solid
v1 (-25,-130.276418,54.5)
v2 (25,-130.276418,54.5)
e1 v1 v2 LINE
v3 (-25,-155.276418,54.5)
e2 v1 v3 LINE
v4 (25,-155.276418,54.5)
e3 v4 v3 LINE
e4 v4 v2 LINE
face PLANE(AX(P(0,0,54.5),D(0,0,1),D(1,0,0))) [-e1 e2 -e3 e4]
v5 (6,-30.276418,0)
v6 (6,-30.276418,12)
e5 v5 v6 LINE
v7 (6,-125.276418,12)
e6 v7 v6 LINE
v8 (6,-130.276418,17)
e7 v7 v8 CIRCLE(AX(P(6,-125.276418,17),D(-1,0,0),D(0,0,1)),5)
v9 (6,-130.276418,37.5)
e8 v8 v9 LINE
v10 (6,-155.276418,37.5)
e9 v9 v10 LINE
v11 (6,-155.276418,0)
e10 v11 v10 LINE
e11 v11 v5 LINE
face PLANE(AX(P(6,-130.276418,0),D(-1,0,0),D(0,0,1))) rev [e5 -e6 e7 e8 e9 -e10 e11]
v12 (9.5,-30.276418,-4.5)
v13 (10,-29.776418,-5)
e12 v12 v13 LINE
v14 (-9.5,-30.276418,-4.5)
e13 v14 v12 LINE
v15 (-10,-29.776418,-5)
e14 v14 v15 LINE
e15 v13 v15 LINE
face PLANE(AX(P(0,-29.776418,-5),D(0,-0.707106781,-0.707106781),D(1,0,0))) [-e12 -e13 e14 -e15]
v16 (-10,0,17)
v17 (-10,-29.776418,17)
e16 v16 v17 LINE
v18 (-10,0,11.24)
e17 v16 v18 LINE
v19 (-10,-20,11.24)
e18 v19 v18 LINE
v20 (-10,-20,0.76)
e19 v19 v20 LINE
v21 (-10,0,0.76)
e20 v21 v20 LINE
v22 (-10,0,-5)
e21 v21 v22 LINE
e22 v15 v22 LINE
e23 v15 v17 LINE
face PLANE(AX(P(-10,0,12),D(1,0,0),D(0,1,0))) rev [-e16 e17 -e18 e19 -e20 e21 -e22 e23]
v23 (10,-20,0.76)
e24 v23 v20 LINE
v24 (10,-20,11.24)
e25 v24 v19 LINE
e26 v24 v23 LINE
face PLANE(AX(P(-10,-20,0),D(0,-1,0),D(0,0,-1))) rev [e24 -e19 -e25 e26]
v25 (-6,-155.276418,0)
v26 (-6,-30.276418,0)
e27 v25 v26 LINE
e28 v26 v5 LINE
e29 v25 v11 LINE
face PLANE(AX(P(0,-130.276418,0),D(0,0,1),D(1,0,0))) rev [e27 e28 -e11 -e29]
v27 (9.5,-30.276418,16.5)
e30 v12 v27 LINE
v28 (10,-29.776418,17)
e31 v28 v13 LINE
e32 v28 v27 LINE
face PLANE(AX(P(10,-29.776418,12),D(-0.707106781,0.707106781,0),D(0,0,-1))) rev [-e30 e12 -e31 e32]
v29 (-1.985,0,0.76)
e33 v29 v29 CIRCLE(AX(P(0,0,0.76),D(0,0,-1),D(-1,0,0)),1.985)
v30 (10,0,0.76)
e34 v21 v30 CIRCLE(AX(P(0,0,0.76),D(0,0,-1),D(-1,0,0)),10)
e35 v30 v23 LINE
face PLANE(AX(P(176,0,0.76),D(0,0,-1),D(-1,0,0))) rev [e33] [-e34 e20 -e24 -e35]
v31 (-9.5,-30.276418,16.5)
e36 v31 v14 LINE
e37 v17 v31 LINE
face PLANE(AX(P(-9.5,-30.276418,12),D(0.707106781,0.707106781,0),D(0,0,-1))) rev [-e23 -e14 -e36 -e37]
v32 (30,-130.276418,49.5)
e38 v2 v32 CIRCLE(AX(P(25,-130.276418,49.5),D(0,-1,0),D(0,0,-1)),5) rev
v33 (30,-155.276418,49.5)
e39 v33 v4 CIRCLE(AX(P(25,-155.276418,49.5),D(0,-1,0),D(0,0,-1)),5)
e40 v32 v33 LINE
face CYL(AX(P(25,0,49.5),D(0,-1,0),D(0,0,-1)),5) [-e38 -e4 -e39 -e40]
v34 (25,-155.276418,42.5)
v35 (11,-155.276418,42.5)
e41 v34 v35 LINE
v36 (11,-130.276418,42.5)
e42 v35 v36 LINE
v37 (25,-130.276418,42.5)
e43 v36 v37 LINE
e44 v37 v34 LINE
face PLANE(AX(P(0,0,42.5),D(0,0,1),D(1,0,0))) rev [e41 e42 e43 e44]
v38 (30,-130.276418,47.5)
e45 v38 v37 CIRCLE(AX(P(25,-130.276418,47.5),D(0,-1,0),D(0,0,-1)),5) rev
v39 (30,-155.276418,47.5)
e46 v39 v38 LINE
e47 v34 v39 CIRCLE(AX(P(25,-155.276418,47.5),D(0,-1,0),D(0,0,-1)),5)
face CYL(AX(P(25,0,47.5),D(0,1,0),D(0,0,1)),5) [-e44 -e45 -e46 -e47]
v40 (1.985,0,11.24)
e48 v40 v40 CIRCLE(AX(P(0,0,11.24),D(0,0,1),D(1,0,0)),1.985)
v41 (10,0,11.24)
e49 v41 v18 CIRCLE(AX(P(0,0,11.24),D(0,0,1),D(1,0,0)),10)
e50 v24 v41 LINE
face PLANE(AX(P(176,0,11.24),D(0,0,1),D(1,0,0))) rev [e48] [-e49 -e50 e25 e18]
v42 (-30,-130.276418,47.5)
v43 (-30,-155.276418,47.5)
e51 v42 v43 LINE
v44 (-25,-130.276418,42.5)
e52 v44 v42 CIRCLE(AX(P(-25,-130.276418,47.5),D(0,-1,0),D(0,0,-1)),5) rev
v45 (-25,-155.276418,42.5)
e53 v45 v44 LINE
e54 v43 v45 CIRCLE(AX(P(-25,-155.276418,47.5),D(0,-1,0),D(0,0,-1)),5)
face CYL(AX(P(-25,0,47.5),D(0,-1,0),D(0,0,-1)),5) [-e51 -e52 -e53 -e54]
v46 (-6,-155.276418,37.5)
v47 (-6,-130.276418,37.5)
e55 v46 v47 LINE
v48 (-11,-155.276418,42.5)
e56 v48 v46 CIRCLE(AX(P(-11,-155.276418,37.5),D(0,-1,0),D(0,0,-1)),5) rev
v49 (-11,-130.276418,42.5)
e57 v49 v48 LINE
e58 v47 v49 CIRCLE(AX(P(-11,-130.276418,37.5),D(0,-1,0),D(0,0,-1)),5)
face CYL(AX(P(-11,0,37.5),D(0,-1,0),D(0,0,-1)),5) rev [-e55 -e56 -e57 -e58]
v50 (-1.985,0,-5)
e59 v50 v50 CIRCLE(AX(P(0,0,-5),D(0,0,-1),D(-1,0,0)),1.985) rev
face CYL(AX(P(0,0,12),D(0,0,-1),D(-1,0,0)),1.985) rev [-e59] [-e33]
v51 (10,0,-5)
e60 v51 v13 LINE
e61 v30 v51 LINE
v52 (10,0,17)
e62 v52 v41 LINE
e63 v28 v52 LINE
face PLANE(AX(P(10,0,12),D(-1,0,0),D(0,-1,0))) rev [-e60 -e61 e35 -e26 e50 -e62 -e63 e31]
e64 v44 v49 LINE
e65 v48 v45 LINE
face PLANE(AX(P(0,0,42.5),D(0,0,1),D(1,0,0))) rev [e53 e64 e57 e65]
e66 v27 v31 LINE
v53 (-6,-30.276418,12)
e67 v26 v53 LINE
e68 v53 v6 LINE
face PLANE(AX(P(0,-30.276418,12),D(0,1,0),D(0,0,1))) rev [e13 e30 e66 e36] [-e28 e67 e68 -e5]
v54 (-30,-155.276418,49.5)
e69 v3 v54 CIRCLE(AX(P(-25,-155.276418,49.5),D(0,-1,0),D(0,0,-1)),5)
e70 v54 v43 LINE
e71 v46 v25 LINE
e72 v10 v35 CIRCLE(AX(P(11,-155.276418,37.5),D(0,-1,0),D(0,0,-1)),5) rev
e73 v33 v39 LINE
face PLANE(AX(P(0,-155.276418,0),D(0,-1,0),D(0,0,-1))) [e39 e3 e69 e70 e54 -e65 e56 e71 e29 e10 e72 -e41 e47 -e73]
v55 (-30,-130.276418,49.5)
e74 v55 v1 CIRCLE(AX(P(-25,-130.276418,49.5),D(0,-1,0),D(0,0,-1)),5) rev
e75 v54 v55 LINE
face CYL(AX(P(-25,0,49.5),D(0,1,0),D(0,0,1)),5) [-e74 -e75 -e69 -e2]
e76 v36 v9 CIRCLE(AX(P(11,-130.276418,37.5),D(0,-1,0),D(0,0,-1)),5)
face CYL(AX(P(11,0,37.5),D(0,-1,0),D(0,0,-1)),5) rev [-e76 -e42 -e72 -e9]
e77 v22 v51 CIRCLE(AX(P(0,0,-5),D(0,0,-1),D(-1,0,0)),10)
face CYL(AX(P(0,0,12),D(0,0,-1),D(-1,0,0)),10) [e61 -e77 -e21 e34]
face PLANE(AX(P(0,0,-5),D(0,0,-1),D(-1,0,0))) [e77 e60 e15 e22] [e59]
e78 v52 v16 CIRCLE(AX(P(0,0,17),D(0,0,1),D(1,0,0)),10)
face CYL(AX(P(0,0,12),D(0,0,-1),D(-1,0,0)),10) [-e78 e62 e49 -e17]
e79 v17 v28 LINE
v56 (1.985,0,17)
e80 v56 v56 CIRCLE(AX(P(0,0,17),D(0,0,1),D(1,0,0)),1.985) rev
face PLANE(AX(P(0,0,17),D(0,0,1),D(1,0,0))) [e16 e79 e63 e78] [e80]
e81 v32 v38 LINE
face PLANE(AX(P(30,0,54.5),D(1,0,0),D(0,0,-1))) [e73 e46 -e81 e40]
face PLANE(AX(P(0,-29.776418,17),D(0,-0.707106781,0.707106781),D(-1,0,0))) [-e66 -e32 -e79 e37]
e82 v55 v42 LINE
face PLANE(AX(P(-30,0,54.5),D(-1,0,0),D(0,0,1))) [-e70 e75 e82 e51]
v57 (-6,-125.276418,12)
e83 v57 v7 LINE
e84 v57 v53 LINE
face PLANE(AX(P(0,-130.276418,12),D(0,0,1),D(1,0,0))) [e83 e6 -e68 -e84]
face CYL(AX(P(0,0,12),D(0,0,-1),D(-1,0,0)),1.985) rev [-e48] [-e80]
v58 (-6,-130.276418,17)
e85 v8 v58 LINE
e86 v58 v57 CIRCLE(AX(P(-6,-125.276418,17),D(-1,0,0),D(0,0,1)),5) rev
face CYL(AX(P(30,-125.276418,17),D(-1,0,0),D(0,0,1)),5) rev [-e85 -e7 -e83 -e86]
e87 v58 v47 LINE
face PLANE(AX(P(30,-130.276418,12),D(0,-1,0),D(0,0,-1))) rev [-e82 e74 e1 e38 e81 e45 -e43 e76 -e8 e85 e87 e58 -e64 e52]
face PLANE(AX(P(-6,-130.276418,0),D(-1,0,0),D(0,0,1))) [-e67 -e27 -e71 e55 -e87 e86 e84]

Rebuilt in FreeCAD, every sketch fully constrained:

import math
import FreeCAD as App
import Part
import Sketcher

V = App.Vector
Q = App.Units.Quantity


def edges_at(feature, points):
    """Names of the edges that pass closest to the given points."""
    edges = feature.Shape.Edges
    near = lambda p: min(range(len(edges)), key=lambda i: edges[i].distToShape(Part.Vertex(*p))[0])
    return sorted({f"Edge{near(p) + 1}" for p in points})


def add_polygon(sketch, points):
    """Adds a closed chain of lines whose ends are joined by coincident constraints."""
    first, n = sketch.GeometryCount, len(points)
    for a, b in zip(points, points[1:] + points[:1]):
        sketch.addGeometry(Part.LineSegment(App.Vector(*a, 0), App.Vector(*b, 0)), False)
    for i in range(n):
        sketch.addConstraint(Sketcher.Constraint("Coincident", first + i, 2, first + (i + 1) % n, 1))

doc = App.newDocument("Part")
body = doc.addObject("PartDesign::Body", "Body")

# Sketch on XY plane
sketch1 = doc.addObject("Sketcher::SketchObject", "Sketch")
body.addObject(sketch1)
sketch1.AttachmentSupport = (doc.XY_Plane, [""])
sketch1.MapMode = "FlatFace"
sketch1.addGeometry([
    Part.LineSegment(V(-10, 0, 0), V(-10, -30.3, 0)),  # 0
    Part.LineSegment(V(-10, -30.3, 0), V(10, -30.3, 0)),  # 1
    Part.LineSegment(V(10, -30.3, 0), V(10, 0, 0)),  # 2
    Part.ArcOfCircle(Part.Circle(V(0, 0, 0), V(0, 0, 1), 10), math.radians(0), math.radians(180)),  # 3
    Part.Circle(V(0, 0, 0), V(0, 0, 1), 2),  # 4
], False)
sketch1.addConstraint([
    Sketcher.Constraint("Coincident", 0, 2, 1, 1),
    Sketcher.Constraint("Coincident", 1, 2, 2, 1),
    Sketcher.Constraint("Tangent", 2, 2, 3, 1),
    Sketcher.Constraint("Tangent", 3, 2, 0, 1),
    Sketcher.Constraint("Vertical", 0),
    Sketcher.Constraint("Horizontal", 1),
    Sketcher.Constraint("Vertical", 2),
    Sketcher.Constraint("Coincident", 3, 3, -1, 1),
    Sketcher.Constraint("Coincident", 4, 3, -1, 1),
    Sketcher.Constraint("Radius", 3, Q("10 mm")),
    Sketcher.Constraint("Diameter", 4, Q("3.97 mm")),
    Sketcher.Constraint("DistanceY", 0, 2, 0, 1, Q("30.276418 mm")),
])
pad1 = doc.addObject("PartDesign::Pad", "Pad")
body.addObject(pad1)
pad1.Profile = sketch1
pad1.Length = 12

# Sketch on YZ plane
sketch2 = doc.addObject("Sketcher::SketchObject", "Sketch001")
body.addObject(sketch2)
sketch2.AttachmentSupport = (doc.YZ_Plane, [""])
sketch2.MapMode = "FlatFace"
sketch2.AttachmentOffset = App.Placement(V(0, 0, 10), App.Rotation())
add_polygon(sketch2, [(15.780779, 3), (15.780779, 9), (0, 9), (-20, 8.600534), (-20, 3)])  # lines 0-4
sketch2.addConstraint([
    Sketcher.Constraint("Vertical", 0),
    Sketcher.Constraint("Horizontal", 1),
    Sketcher.Constraint("Vertical", 3),
    Sketcher.Constraint("Horizontal", 4),
    Sketcher.Constraint("PointOnObject", 1, 2, -2),
    Sketcher.Constraint("DistanceY", 0, 1, 0, 2, Q("6 mm")),
    Sketcher.Constraint("DistanceY", -1, 1, 0, 2, Q("9 mm")),
    Sketcher.Constraint("DistanceX", 2, 2, -1, 1, Q("20 mm")),
    Sketcher.Constraint("DistanceX", 1, 2, 1, 1, Q("15.780779 mm")),
    Sketcher.Constraint("Distance", 2, Q("20.003989 mm")),
])
pocket1 = doc.addObject("PartDesign::Pocket", "Pocket")
body.addObject(pocket1)
pocket1.Profile = sketch2
pocket1.Type = "ThroughAll"

# Sketch on YZ plane
sketch3 = doc.addObject("Sketcher::SketchObject", "Sketch002")
body.addObject(sketch3)
sketch3.AttachmentSupport = (doc.YZ_Plane, [""])
sketch3.MapMode = "FlatFace"
sketch3.AttachmentOffset = App.Placement(V(0, 0, 10), App.Rotation())
add_polygon(sketch3, [(0, 9), (-20, 9), (-20, 8.6)])  # lines 0-2
sketch3.addConstraint([
    Sketcher.Constraint("Horizontal", 0),
    Sketcher.Constraint("Vertical", 1),
    Sketcher.Constraint("PointOnObject", 2, 2, -2),
    Sketcher.Constraint("DistanceX", 0, 2, 0, 1, Q("20 mm")),
    Sketcher.Constraint("DistanceY", -1, 1, 0, 2, Q("9 mm")),
    Sketcher.Constraint("Distance", 2, Q("20.003989 mm")),
])
pocket2 = doc.addObject("PartDesign::Pocket", "Pocket001")
body.addObject(pocket2)
pocket2.Profile = sketch3
pocket2.Type = "ThroughAll"

# Sketch on XY plane
sketch4 = doc.addObject("Sketcher::SketchObject", "Sketch003")
body.addObject(sketch4)
sketch4.AttachmentSupport = (doc.XY_Plane, [""])
sketch4.MapMode = "FlatFace"
sketch4.AttachmentOffset = App.Placement(V(0, 0, 12), App.Rotation())
sketch4.addGeometry([
    Part.ArcOfCircle(Part.Circle(V(0, 0, 0), V(0, 0, 1), 10), math.radians(0), math.radians(180)),  # 0
    Part.LineSegment(V(-10, 0, 0), V(-10, -30.3, 0)),  # 1
    Part.LineSegment(V(-10, -30.3, 0), V(10, -30.3, 0)),  # 2
    Part.LineSegment(V(10, -30.3, 0), V(10, 0, 0)),  # 3
    Part.Circle(V(0, 0, 0), V(0, 0, 1), 2),  # 4
], False)
sketch4.addConstraint([
    Sketcher.Constraint("Tangent", 0, 2, 1, 1),
    Sketcher.Constraint("Coincident", 1, 2, 2, 1),
    Sketcher.Constraint("Coincident", 2, 2, 3, 1),
    Sketcher.Constraint("Tangent", 3, 2, 0, 1),
    Sketcher.Constraint("Vertical", 1),
    Sketcher.Constraint("Horizontal", 2),
    Sketcher.Constraint("Vertical", 3),
    Sketcher.Constraint("Coincident", 0, 3, -1, 1),
    Sketcher.Constraint("Coincident", 4, 3, -1, 1),
    Sketcher.Constraint("Radius", 0, Q("10 mm")),
    Sketcher.Constraint("Diameter", 4, Q("3.97 mm")),
    Sketcher.Constraint("DistanceY", 1, 2, 1, 1, Q("30.276418 mm")),
])
pad2 = doc.addObject("PartDesign::Pad", "Pad001")
body.addObject(pad2)
pad2.Profile = sketch4
pad2.Length = 5

# Sketch on XY plane
sketch5 = doc.addObject("Sketcher::SketchObject", "Sketch004")
body.addObject(sketch5)
sketch5.AttachmentSupport = (doc.XY_Plane, [""])
sketch5.MapMode = "FlatFace"
sketch5.addGeometry([
    Part.ArcOfCircle(Part.Circle(V(0, 0, 0), V(0, 0, 1), 10), math.radians(0), math.radians(180)),  # 0
    Part.LineSegment(V(10, 0, 0), V(10, -30.3, 0)),  # 1
    Part.LineSegment(V(10, -30.3, 0), V(-10, -30.3, 0)),  # 2
    Part.LineSegment(V(-10, -30.3, 0), V(-10, 0, 0)),  # 3
    Part.Circle(V(0, 0, 0), V(0, 0, 1), 2),  # 4
], False)
sketch5.addConstraint([
    Sketcher.Constraint("Tangent", 0, 1, 1, 1),
    Sketcher.Constraint("Coincident", 1, 2, 2, 1),
    Sketcher.Constraint("Coincident", 2, 2, 3, 1),
    Sketcher.Constraint("Tangent", 3, 2, 0, 2),
    Sketcher.Constraint("Vertical", 1),
    Sketcher.Constraint("Horizontal", 2),
    Sketcher.Constraint("Vertical", 3),
    Sketcher.Constraint("Coincident", 0, 3, -1, 1),
    Sketcher.Constraint("Coincident", 4, 3, -1, 1),
    Sketcher.Constraint("Radius", 0, Q("10 mm")),
    Sketcher.Constraint("Diameter", 4, Q("3.97 mm")),
    Sketcher.Constraint("DistanceY", 1, 2, 1, 1, Q("30.276418 mm")),
])
pad3 = doc.addObject("PartDesign::Pad", "Pad002")
body.addObject(pad3)
pad3.Profile = sketch5
pad3.Length = 5
pad3.Reversed = True

# Sketch on YZ plane
sketch6 = doc.addObject("Sketcher::SketchObject", "Sketch005")
body.addObject(sketch6)
sketch6.AttachmentSupport = (doc.YZ_Plane, [""])
sketch6.MapMode = "FlatFace"
sketch6.AttachmentOffset = App.Placement(V(0, 0, -10), App.Rotation())
add_polygon(sketch6, [(10, 11), (10, 1), (-20, 1), (-20, 11)])  # lines 0-3
sketch6.addConstraint([
    Sketcher.Constraint("Vertical", 0),
    Sketcher.Constraint("Horizontal", 1),
    Sketcher.Constraint("Vertical", 2),
    Sketcher.Constraint("Horizontal", 3),
    Sketcher.Constraint("DistanceX", 1, 2, 1, 1, Q("30 mm")),
    Sketcher.Constraint("DistanceX", -1, 1, 0, 2, Q("10 mm")),
    Sketcher.Constraint("DistanceY", 0, 2, 0, 1, Q("10.08 mm")),
    Sketcher.Constraint("DistanceY", -1, 1, 0, 2, Q("0.96 mm")),
])
pocket3 = doc.addObject("PartDesign::Pocket", "Pocket002")
body.addObject(pocket3)
pocket3.Profile = sketch6
pocket3.Type = "ThroughAll"
pocket3.Reversed = True

# Sketch on XZ plane
sketch7 = doc.addObject("Sketcher::SketchObject", "Sketch006")
body.addObject(sketch7)
sketch7.AttachmentSupport = (doc.XZ_Plane, [""])
sketch7.MapMode = "FlatFace"
sketch7.AttachmentOffset = App.Placement(V(0, 0, 30.276418), App.Rotation())
add_polygon(sketch7, [(6, 12), (-6, 12), (-6, 0), (6, 0)])  # lines 0-3
sketch7.addConstraint([
    Sketcher.Constraint("Horizontal", 0),
    Sketcher.Constraint("Vertical", 1),
    Sketcher.Constraint("Horizontal", 2),
    Sketcher.Constraint("Vertical", 3),
    Sketcher.Constraint("Symmetric", 1, 2, 2, 2, -1, 1),
    Sketcher.Constraint("Equal", 2, 1),
    Sketcher.Constraint("DistanceX", 0, 2, 0, 1, Q("12 mm")),
])
pad4 = doc.addObject("PartDesign::Pad", "Pad003")
body.addObject(pad4)
pad4.Profile = sketch7
pad4.Length = 100

# Sketch on XZ plane
sketch8 = doc.addObject("Sketcher::SketchObject", "Sketch007")
body.addObject(sketch8)
sketch8.AttachmentSupport = (doc.XZ_Plane, [""])
sketch8.MapMode = "FlatFace"
sketch8.AttachmentOffset = App.Placement(V(0, 0, 130.276418), App.Rotation())
add_polygon(sketch8, [(176, -54), (176, 96), (-61, 96), (-61, -54)])  # lines 0-3
sketch8.addConstraint([
    Sketcher.Constraint("Vertical", 0),
    Sketcher.Constraint("Horizontal", 1),
    Sketcher.Constraint("Vertical", 2),
    Sketcher.Constraint("Horizontal", 3),
    Sketcher.Constraint("DistanceX", 1, 2, 1, 1, Q("237 mm")),
    Sketcher.Constraint("DistanceY", 0, 1, 0, 2, Q("150 mm")),
    Sketcher.Constraint("DistanceX", -1, 1, 0, 2, Q("176 mm")),
    Sketcher.Constraint("DistanceY", -1, 1, 0, 2, Q("96 mm")),
])
pad5 = doc.addObject("PartDesign::Pad", "Pad004")
body.addObject(pad5)
pad5.Profile = sketch8
pad5.Length = 25

# Sketch on XZ plane
sketch9 = doc.addObject("Sketcher::SketchObject", "Sketch008")
body.addObject(sketch9)
sketch9.AttachmentSupport = (doc.XZ_Plane, [""])
sketch9.MapMode = "FlatFace"
sketch9.AttachmentOffset = App.Placement(V(0, 0, 130.276418), App.Rotation())
add_polygon(sketch9, [(119, 68), (139, 68), (139, 37), (119, 37)])  # lines 0-3
sketch9.addConstraint([
    Sketcher.Constraint("Horizontal", 0),
    Sketcher.Constraint("Vertical", 1),
    Sketcher.Constraint("Horizontal", 2),
    Sketcher.Constraint("Vertical", 3),
    Sketcher.Constraint("DistanceX", 0, 1, 0, 2, Q("20 mm")),
    Sketcher.Constraint("DistanceY", 1, 2, 1, 1, Q("31 mm")),
    Sketcher.Constraint("DistanceX", -1, 1, 0, 2, Q("139 mm")),
    Sketcher.Constraint("DistanceY", -1, 1, 0, 2, Q("68 mm")),
])
pad6 = doc.addObject("PartDesign::Pad", "Pad005")
body.addObject(pad6)
pad6.Profile = sketch9
pad6.Length = 7
pad6.Reversed = True

# Sketch on XZ plane
sketch10 = doc.addObject("Sketcher::SketchObject", "Sketch009")
body.addObject(sketch10)
sketch10.AttachmentSupport = (doc.XZ_Plane, [""])
sketch10.MapMode = "FlatFace"
sketch10.AttachmentOffset = App.Placement(V(0, 0, 130.276418), App.Rotation())
add_polygon(sketch10, [(114, 68), (119, 68), (119, 37), (114, 37)])  # lines 0-3
add_polygon(sketch10, [(139, 37), (139, 68), (144, 68), (144, 37)])  # lines 4-7
sketch10.addConstraint([
    Sketcher.Constraint("Horizontal", 0),
    Sketcher.Constraint("Vertical", 1),
    Sketcher.Constraint("Vertical", 3),
    Sketcher.Constraint("Vertical", 4),
    Sketcher.Constraint("Horizontal", 5),
    Sketcher.Constraint("Vertical", 6),
    Sketcher.Constraint("Horizontal", 7),
    Sketcher.Constraint("Horizontal", 3, 2, 4, 2),
    Sketcher.Constraint("Horizontal", 1, 2, 6, 2),
    Sketcher.Constraint("Equal", 0, 5),
    Sketcher.Constraint("DistanceX", 0, 1, 0, 2, Q("5 mm")),
    Sketcher.Constraint("DistanceY", 1, 2, 1, 1, Q("31 mm")),
    Sketcher.Constraint("DistanceX", -1, 1, 0, 2, Q("119 mm")),
    Sketcher.Constraint("DistanceY", -1, 1, 0, 2, Q("68 mm")),
    Sketcher.Constraint("DistanceX", -1, 1, 4, 2, Q("139 mm")),
    Sketcher.Constraint("DistanceY", 3, 1, 3, 2, Q("30.870275 mm")),
])
pad7 = doc.addObject("PartDesign::Pad", "Pad006")
body.addObject(pad7)
pad7.Profile = sketch10
pad7.Length = 45
pad7.Reversed = True

# Sketch on XY plane
sketch11 = doc.addObject("Sketcher::SketchObject", "Sketch010")
body.addObject(sketch11)
sketch11.AttachmentSupport = (doc.XY_Plane, [""])
sketch11.MapMode = "FlatFace"
sketch11.AttachmentOffset = App.Placement(V(0, 0, 68), App.Rotation())
add_polygon(sketch11, [(144, -130), (159, -130), (144, -85)])  # lines 0-2
add_polygon(sketch11, [(114, -85), (99, -130), (114, -130)])  # lines 3-5
sketch11.addConstraint([
    Sketcher.Constraint("Horizontal", 0),
    Sketcher.Constraint("Vertical", 2),
    Sketcher.Constraint("Horizontal", 4),
    Sketcher.Constraint("Vertical", 5),
    Sketcher.Constraint("Horizontal", 2, 2, 3, 2),
    Sketcher.Constraint("Horizontal", 1, 2, 5, 2),
    Sketcher.Constraint("Equal", 0, 4),
    Sketcher.Constraint("DistanceX", 0, 1, 0, 2, Q("15 mm")),
    Sketcher.Constraint("DistanceY", 2, 2, 2, 1, Q("45 mm")),
    Sketcher.Constraint("DistanceX", -1, 1, 0, 2, Q("159 mm")),
    Sketcher.Constraint("DistanceX", -1, 1, 3, 2, Q("99 mm")),
    Sketcher.Constraint("DistanceY", 0, 2, -1, 1, Q("130.276418 mm")),
])
pad8 = doc.addObject("PartDesign::Pad", "Pad007")
body.addObject(pad8)
pad8.Profile = sketch11
pad8.Length = 31
pad8.Reversed = True

# Sketch on XY plane
sketch12 = doc.addObject("Sketcher::SketchObject", "Sketch011")
body.addObject(sketch12)
sketch12.AttachmentSupport = (doc.XY_Plane, [""])
sketch12.MapMode = "FlatFace"
sketch12.AttachmentOffset = App.Placement(V(0, 0, 37), App.Rotation())
sketch12.addGeometry([
    Part.Circle(V(134.9, -126.8, 0), V(0, 0, 1), 2),
    Part.Circle(V(123, -126.8, 0), V(0, 0, 1), 2),
], False)
sketch12.addConstraint([
    Sketcher.Constraint("Equal", 0, 1),
    Sketcher.Constraint("Horizontal", 0, 3, 1, 3),
    Sketcher.Constraint("Diameter", 0, Q("4 mm")),
    Sketcher.Constraint("DistanceX", 1, 3, 0, 3, Q("11.9 mm")),
    Sketcher.Constraint("DistanceX", -1, 1, 0, 3, Q("134.95 mm")),
    Sketcher.Constraint("DistanceY", 0, 3, -1, 1, Q("126.776418 mm")),
])
pocket4 = doc.addObject("PartDesign::Pocket", "Pocket003")
body.addObject(pocket4)
pocket4.Profile = sketch12
pocket4.Type = "ThroughAll"
pocket4.Reversed = True

# Sketch on YZ plane
sketch13 = doc.addObject("Sketcher::SketchObject", "Sketch012")
body.addObject(sketch13)
sketch13.AttachmentSupport = (doc.YZ_Plane, [""])
sketch13.MapMode = "FlatFace"
sketch13.AttachmentOffset = App.Placement(V(0, 0, -10), App.Rotation())
add_polygon(sketch13, [(10, 1), (-20, 1), (-20, 11), (10, 11)])  # lines 0-3
sketch13.addConstraint([
    Sketcher.Constraint("Horizontal", 0),
    Sketcher.Constraint("Vertical", 1),
    Sketcher.Constraint("Horizontal", 2),
    Sketcher.Constraint("Vertical", 3),
    Sketcher.Constraint("DistanceX", 0, 2, 0, 1, Q("30 mm")),
    Sketcher.Constraint("DistanceX", 0, 2, -1, 1, Q("20 mm")),
    Sketcher.Constraint("DistanceY", 1, 1, 1, 2, Q("10.48 mm")),
    Sketcher.Constraint("DistanceY", -1, 1, 0, 2, Q("0.76 mm")),
])
pocket5 = doc.addObject("PartDesign::Pocket", "Pocket004")
body.addObject(pocket5)
pocket5.Profile = sketch13
pocket5.Type = "ThroughAll"
pocket5.Reversed = True
doc.recompute()

fillet = doc.addObject("PartDesign::Fillet", "Fillet")
body.addObject(fillet)
fillet.Base = (pocket5, edges_at(pocket5, [
    (-61, -142.776, 96),
    (-61, -142.776, -54),
    (176, -142.776, -54),
    (176, -142.776, 96),
]))
fillet.Radius = 10

# Sketch on XY plane
sketch14 = doc.addObject("Sketcher::SketchObject", "Sketch013")
body.addObject(sketch14)
sketch14.AttachmentSupport = (doc.XY_Plane, [""])
sketch14.MapMode = "FlatFace"
add_polygon(sketch14, [(6, -80), (16, -130), (6, -130)])  # lines 0-2
add_polygon(sketch14, [(-16, -130), (-6, -80), (-6, -130)])  # lines 3-5
sketch14.addConstraint([
    Sketcher.Constraint("Horizontal", 1),
    Sketcher.Constraint("Vertical", 2),
    Sketcher.Constraint("Vertical", 4),
    Sketcher.Constraint("Horizontal", 5),
    Sketcher.Constraint("Symmetric", 2, 2, 3, 2, -2),
    Sketcher.Constraint("Symmetric", 0, 2, 5, 2, -2),
    Sketcher.Constraint("DistanceX", 1, 2, 1, 1, Q("10 mm")),
    Sketcher.Constraint("DistanceY", 2, 1, 2, 2, Q("50 mm")),
    Sketcher.Constraint("DistanceX", -1, 1, 0, 2, Q("16 mm")),
    Sketcher.Constraint("DistanceY", 0, 2, -1, 1, Q("130.276418 mm")),
])
pad9 = doc.addObject("PartDesign::Pad", "Pad008")
body.addObject(pad9)
pad9.Profile = sketch14
pad9.Length = 12

# Sketch on YZ plane
sketch15 = doc.addObject("Sketcher::SketchObject", "Sketch014")
body.addObject(sketch15)
sketch15.AttachmentSupport = (doc.YZ_Plane, [""])
sketch15.MapMode = "FlatFace"
sketch15.AttachmentOffset = App.Placement(V(0, 0, 6), App.Rotation())
add_polygon(sketch15, [(-80, 12), (-130, 22), (-130, 12)])  # lines 0-2
add_polygon(sketch15, [(-130, -11), (-80, 0), (-130, 0)])  # lines 3-5
sketch15.addConstraint([
    Sketcher.Constraint("Vertical", 1),
    Sketcher.Constraint("Horizontal", 2),
    Sketcher.Constraint("Horizontal", 4),
    Sketcher.Constraint("Vertical", 5),
    Sketcher.Constraint("PointOnObject", 3, 2, -1),
    Sketcher.Constraint("Vertical", 2, 2, 3, 2),
    Sketcher.Constraint("Vertical", 1, 2, 4, 2),
    Sketcher.Constraint("DistanceX", 2, 1, 2, 2, Q("50 mm")),
    Sketcher.Constraint("DistanceY", 1, 2, 1, 1, Q("10 mm")),
    Sketcher.Constraint("DistanceY", -1, 1, 0, 2, Q("22 mm")),
    Sketcher.Constraint("DistanceY", 5, 2, 5, 1, Q("11.303197 mm")),
    Sketcher.Constraint("DistanceX", 0, 2, -1, 1, Q("130.276418 mm")),
])
pad10 = doc.addObject("PartDesign::Pad", "Pad009")
body.addObject(pad10)
pad10.Profile = sketch15
pad10.Length = 12
pad10.Reversed = True

# Sketch on XZ plane
sketch16 = doc.addObject("Sketcher::SketchObject", "Sketch015")
body.addObject(sketch16)
sketch16.AttachmentSupport = (doc.XZ_Plane, [""])
sketch16.MapMode = "FlatFace"
sketch16.AttachmentOffset = App.Placement(V(0, 0, 130.276418), App.Rotation())
add_polygon(sketch16, [(-6, 58), (6, 58), (6, 46), (-6, 46)])  # lines 0-3
sketch16.addConstraint([
    Sketcher.Constraint("Horizontal", 0),
    Sketcher.Constraint("Vertical", 1),
    Sketcher.Constraint("Horizontal", 2),
    Sketcher.Constraint("Vertical", 3),
    Sketcher.Constraint("Equal", 2, 1),
    Sketcher.Constraint("DistanceX", 0, 1, 0, 2, Q("12 mm")),
    Sketcher.Constraint("DistanceX", -1, 1, 0, 2, Q("6 mm")),
    Sketcher.Constraint("DistanceY", -1, 1, 0, 2, Q("58.5 mm")),
])
pad11 = doc.addObject("PartDesign::Pad", "Pad010")
body.addObject(pad11)
pad11.Profile = sketch16
pad11.Length = 72
pad11.Reversed = True

# Sketch on XY plane
sketch17 = doc.addObject("Sketcher::SketchObject", "Sketch016")
body.addObject(sketch17)
sketch17.AttachmentSupport = (doc.XY_Plane, [""])
sketch17.MapMode = "FlatFace"
sketch17.AttachmentOffset = App.Placement(V(0, 0, 12), App.Rotation())
add_polygon(sketch17, [(-6, -58), (-6, -70), (6, -70), (6, -58)])  # lines 0-3
sketch17.addConstraint([
    Sketcher.Constraint("Vertical", 0),
    Sketcher.Constraint("Horizontal", 1),
    Sketcher.Constraint("Vertical", 2),
    Sketcher.Constraint("Horizontal", 3),
    Sketcher.Constraint("Equal", 3, 0),
    Sketcher.Constraint("DistanceX", 1, 1, 1, 2, Q("12 mm")),
    Sketcher.Constraint("DistanceX", 0, 2, -1, 1, Q("6 mm")),
    Sketcher.Constraint("DistanceY", 0, 2, -1, 1, Q("70.276418 mm")),
])
pad12 = doc.addObject("PartDesign::Pad", "Pad011")
body.addObject(pad12)
pad12.Profile = sketch17
pad12.Length = 34.5

# Sketch on YZ plane
sketch18 = doc.addObject("Sketcher::SketchObject", "Sketch017")
body.addObject(sketch18)
sketch18.AttachmentSupport = (doc.YZ_Plane, [""])
sketch18.MapMode = "FlatFace"
sketch18.AttachmentOffset = App.Placement(V(0, 0, -6), App.Rotation())
add_polygon(sketch18, [(-70, 12), (-70, 0), (-119, -67), (-164, -59), (-164, 22), (-130, 22), (-86, 21)])  # lines 0-6
sketch18.addConstraint([
    Sketcher.Constraint("Vertical", 0),
    Sketcher.Constraint("Vertical", 3),
    Sketcher.Constraint("Horizontal", 4),
    Sketcher.Constraint("PointOnObject", 0, 2, -1),
    Sketcher.Constraint("DistanceY", 0, 2, 0, 1, Q("12 mm")),
    Sketcher.Constraint("DistanceY", -1, 1, 3, 2, Q("22 mm")),
    Sketcher.Constraint("DistanceX", 4, 2, 0, 2, Q("60 mm")),
    Sketcher.Constraint("DistanceX", 4, 1, 4, 2, Q("34.084859 mm")),
    Sketcher.Constraint("DistanceY", 3, 1, 3, 2, Q("80.508131 mm")),
    Sketcher.Constraint("Distance", 5, Q("43.875541 mm")),
    Sketcher.Constraint("DistanceY", 1, 2, -1, 1, Q("67.391721 mm")),
    Sketcher.Constraint("DistanceY", -1, 1, 5, 2, Q("21.22209 mm")),
    Sketcher.Constraint("DistanceX", 1, 2, 0, 2, Q("48.778549 mm")),
    Sketcher.Constraint("DistanceX", 0, 2, -1, 1, Q("70.276418 mm")),
])
pocket6 = doc.addObject("PartDesign::Pocket", "Pocket005")
body.addObject(pocket6)
pocket6.Profile = sketch18
pocket6.Type = "ThroughAll"
pocket6.Midplane = True

# Sketch on XZ plane
sketch19 = doc.addObject("Sketcher::SketchObject", "Sketch018")
body.addObject(sketch19)
sketch19.AttachmentSupport = (doc.XZ_Plane, [""])
sketch19.MapMode = "FlatFace"
sketch19.AttachmentOffset = App.Placement(V(0, 0, 130.276418), App.Rotation())
add_polygon(sketch19, [(-80, -6), (-80, 111), (197, 111), (197, -6)])  # lines 0-3
sketch19.addGeometry(Part.ArcOfCircle(Part.Circle(V(-17, 52, 0), V(0, 0, 1), 23), math.radians(90), math.radians(270)), False)  # 4
sketch19.addGeometry(Part.LineSegment(V(-17, 30, 0), V(148, 30, 0)), False)  # 5
sketch19.addGeometry(Part.ArcOfCircle(Part.Circle(V(148, 52, 0), V(0, 0, 1), 23), math.radians(-90), math.radians(90)), False)  # 6
sketch19.addGeometry(Part.LineSegment(V(148, 75, 0), V(-17, 75, 0)), False)  # 7
sketch19.addConstraint([
    Sketcher.Constraint("Tangent", 4, 2, 5, 1),
    Sketcher.Constraint("Tangent", 5, 2, 6, 1),
    Sketcher.Constraint("Tangent", 6, 2, 7, 1),
    Sketcher.Constraint("Tangent", 7, 2, 4, 1),
    Sketcher.Constraint("Vertical", 0),
    Sketcher.Constraint("Horizontal", 1),
    Sketcher.Constraint("Vertical", 2),
    Sketcher.Constraint("Horizontal", 3),
    Sketcher.Constraint("Horizontal", 5),
    Sketcher.Constraint("Horizontal", 7),
    Sketcher.Constraint("DistanceY", -1, 1, 4, 3, Q("52.5 mm")),
    Sketcher.Constraint("Radius", 4, Q("22.579803 mm")),
    Sketcher.Constraint("DistanceX", 1, 1, 1, 2, Q("276.86076 mm")),
    Sketcher.Constraint("DistanceY", 0, 1, 0, 2, Q("117.184268 mm")),
    Sketcher.Constraint("DistanceX", 5, 1, 5, 2, Q("165.617902 mm")),
    Sketcher.Constraint("DistanceX", 4, 3, -1, 1, Q("17.311058 mm")),
    Sketcher.Constraint("DistanceX", 0, 2, -1, 1, Q("80.308979 mm")),
    Sketcher.Constraint("DistanceY", 3, 2, 4, 2, Q("36.012331 mm")),
])
pocket7 = doc.addObject("PartDesign::Pocket", "Pocket006")
body.addObject(pocket7)
pocket7.Profile = sketch19
pocket7.Type = "ThroughAll"
pocket7.Reversed = True

# Sketch on YZ plane
sketch20 = doc.addObject("Sketcher::SketchObject", "Sketch019")
body.addObject(sketch20)
sketch20.AttachmentSupport = (doc.YZ_Plane, [""])
sketch20.MapMode = "FlatFace"
sketch20.AttachmentOffset = App.Placement(V(0, 0, -6), App.Rotation())
add_polygon(sketch20, [(-70, 12), (-70, 0), (-130, 0), (-130, 46), (-118, 46), (-118, 12)])  # lines 0-5
sketch20.addConstraint([
    Sketcher.Constraint("Vertical", 0),
    Sketcher.Constraint("Horizontal", 1),
    Sketcher.Constraint("Vertical", 2),
    Sketcher.Constraint("Horizontal", 3),
    Sketcher.Constraint("Vertical", 4),
    Sketcher.Constraint("Horizontal", 5),
    Sketcher.Constraint("PointOnObject", 0, 2, -1),
    Sketcher.Constraint("Equal", 3, 0),
    Sketcher.Constraint("DistanceX", 1, 2, 1, 1, Q("60 mm")),
    Sketcher.Constraint("DistanceX", 3, 1, 3, 2, Q("12 mm")),
    Sketcher.Constraint("DistanceY", 2, 1, 2, 2, Q("46.5 mm")),
    Sketcher.Constraint("DistanceX", 0, 2, -1, 1, Q("70.276418 mm")),
])
pad13 = doc.addObject("PartDesign::Pad", "Pad012")
body.addObject(pad13)
pad13.Profile = sketch20
pad13.Length = 12

# Sketch on YZ plane
sketch21 = doc.addObject("Sketcher::SketchObject", "Sketch020")
body.addObject(sketch21)
sketch21.AttachmentSupport = (doc.YZ_Plane, [""])
sketch21.MapMode = "FlatFace"
sketch21.AttachmentOffset = App.Placement(V(0, 0, -6), App.Rotation())
add_polygon(sketch21, [(-50, 12), (-118, 12), (-118, 98), (-27, 103)])  # lines 0-3
sketch21.addConstraint([
    Sketcher.Constraint("Horizontal", 0),
    Sketcher.Constraint("Vertical", 1),
    Sketcher.Constraint("DistanceY", -1, 1, 0, 2, Q("12 mm")),
    Sketcher.Constraint("DistanceX", 0, 2, 0, 1, Q("67.922948 mm")),
    Sketcher.Constraint("DistanceY", 1, 1, 1, 2, Q("85.717445 mm")),
    Sketcher.Constraint("DistanceY", -1, 1, 2, 2, Q("103.225359 mm")),
    Sketcher.Constraint("DistanceX", 3, 2, -1, 1, Q("50.35347 mm")),
    Sketcher.Constraint("Distance", 2, Q("91.650237 mm")),
])
pocket8 = doc.addObject("PartDesign::Pocket", "Pocket007")
body.addObject(pocket8)
pocket8.Profile = sketch21
pocket8.Length = 12
pocket8.Reversed = True

# Sketch on XZ plane
sketch22 = doc.addObject("Sketcher::SketchObject", "Sketch021")
body.addObject(sketch22)
sketch22.AttachmentSupport = (doc.XZ_Plane, [""])
sketch22.MapMode = "FlatFace"
sketch22.AttachmentOffset = App.Placement(V(0, 0, 130.276418), App.Rotation())
add_polygon(sketch22, [(-6, 30), (-6, 0), (6, 0), (6, 30)])  # lines 0-3
sketch22.addConstraint([
    Sketcher.Constraint("Vertical", 0),
    Sketcher.Constraint("Horizontal", 1),
    Sketcher.Constraint("Vertical", 2),
    Sketcher.Constraint("Horizontal", 3),
    Sketcher.Constraint("Symmetric", 0, 2, 1, 2, -1, 1),
    Sketcher.Constraint("DistanceX", 1, 1, 1, 2, Q("12 mm")),
    Sketcher.Constraint("DistanceY", 0, 2, 0, 1, Q("29.920197 mm")),
])
pad14 = doc.addObject("PartDesign::Pad", "Pad013")
body.addObject(pad14)
pad14.Profile = sketch22
pad14.Length = 25

# Sketch on XZ plane
sketch23 = doc.addObject("Sketcher::SketchObject", "Sketch022")
body.addObject(sketch23)
sketch23.AttachmentSupport = (doc.XZ_Plane, [""])
sketch23.MapMode = "FlatFace"
sketch23.AttachmentOffset = App.Placement(V(0, 0, 130.276418), App.Rotation())
add_polygon(sketch23, [(6, 46), (6, 58), (30, 58), (30, 46)])  # lines 0-3
add_polygon(sketch23, [(-30, 46), (-30, 58), (-6, 58), (-6, 46)])  # lines 4-7
sketch23.addConstraint([
    Sketcher.Constraint("Vertical", 0),
    Sketcher.Constraint("Horizontal", 1),
    Sketcher.Constraint("Vertical", 2),
    Sketcher.Constraint("Horizontal", 3),
    Sketcher.Constraint("Vertical", 4),
    Sketcher.Constraint("Horizontal", 5),
    Sketcher.Constraint("Vertical", 6),
    Sketcher.Constraint("Horizontal", 7),
    Sketcher.Constraint("Symmetric", 1, 2, 4, 2, -2),
    Sketcher.Constraint("Symmetric", 3, 2, 6, 2, -2),
    Sketcher.Constraint("DistanceX", 1, 1, 1, 2, Q("24 mm")),
    Sketcher.Constraint("DistanceY", 0, 1, 0, 2, Q("12 mm")),
    Sketcher.Constraint("DistanceX", -1, 1, 0, 2, Q("6 mm")),
    Sketcher.Constraint("DistanceY", -1, 1, 0, 2, Q("58.5 mm")),
])
pad15 = doc.addObject("PartDesign::Pad", "Pad014")
body.addObject(pad15)
pad15.Profile = sketch23
pad15.Type = "TwoLengths"
pad15.Length = 12
pad15.Length2 = 25
pad15.Reversed = True

# Sketch on XZ plane
sketch24 = doc.addObject("Sketcher::SketchObject", "Sketch023")
body.addObject(sketch24)
sketch24.AttachmentSupport = (doc.XZ_Plane, [""])
sketch24.MapMode = "FlatFace"
sketch24.AttachmentOffset = App.Placement(V(0, 0, 130.276418), App.Rotation())
add_polygon(sketch24, [(-87, -43), (-87, 122), (194, 122), (194, -43)])  # lines 0-3
add_polygon(sketch24, [(37, -17), (6, 30), (6, 46), (30, 46), (30, 58), (-30, 58), (-30, 46), (-6, 46), (-6, 30), (-45, -5), (-9, -31), (-3, -31)])  # lines 4-15
sketch24.addConstraint([
    Sketcher.Constraint("Vertical", 0),
    Sketcher.Constraint("Horizontal", 1),
    Sketcher.Constraint("Vertical", 2),
    Sketcher.Constraint("Horizontal", 3),
    Sketcher.Constraint("Vertical", 5),
    Sketcher.Constraint("Horizontal", 6),
    Sketcher.Constraint("Vertical", 7),
    Sketcher.Constraint("Horizontal", 8),
    Sketcher.Constraint("Vertical", 9),
    Sketcher.Constraint("Horizontal", 10),
    Sketcher.Constraint("Vertical", 11),
    Sketcher.Constraint("Horizontal", 14),
    Sketcher.Constraint("Symmetric", 6, 2, 9, 2, -2),
    Sketcher.Constraint("Symmetric", 4, 2, 11, 2, -2),
    Sketcher.Constraint("DistanceX", 6, 1, 6, 2, Q("24 mm")),
    Sketcher.Constraint("DistanceX", 8, 2, 8, 1, Q("60 mm")),
    Sketcher.Constraint("DistanceY", 7, 1, 7, 2, Q("12 mm")),
    Sketcher.Constraint("DistanceY", -1, 1, 5, 2, Q("46.5 mm")),
    Sketcher.Constraint("DistanceY", 0, 1, 0, 2, Q("164.782482 mm")),
    Sketcher.Constraint("DistanceY", 12, 2, -1, 1, Q("5.2305 mm")),
    Sketcher.Constraint("Distance", 13, Q("43.607721 mm")),
    Sketcher.Constraint("Distance", 15, Q("42.331079 mm")),
    Sketcher.Constraint("DistanceX", 1, 1, 1, 2, Q("281.096086 mm")),
    Sketcher.Constraint("DistanceX", 14, 1, 14, 2, Q("5.690383 mm")),
    Sketcher.Constraint("DistanceY", 5, 1, 5, 2, Q("16.579803 mm")),
    Sketcher.Constraint("DistanceX", 0, 2, -1, 1, Q("87.03761 mm")),
    Sketcher.Constraint("DistanceY", -1, 1, 0, 2, Q("122.066949 mm")),
    Sketcher.Constraint("DistanceX", 12, 2, -1, 1, Q("44.589128 mm")),
    Sketcher.Constraint("DistanceY", 13, 2, -1, 1, Q("30.618362 mm")),
    Sketcher.Constraint("DistanceX", 14, 2, 15, 2, Q("40.019249 mm")),
])
pocket9 = doc.addObject("PartDesign::Pocket", "Pocket008")
body.addObject(pocket9)
pocket9.Profile = sketch24
pocket9.Type = "ThroughAll"
pocket9.Midplane = True

# Sketch on YZ plane
sketch25 = doc.addObject("Sketcher::SketchObject", "Sketch024")
body.addObject(sketch25)
sketch25.AttachmentSupport = (doc.YZ_Plane, [""])
sketch25.MapMode = "FlatFace"
sketch25.AttachmentOffset = App.Placement(V(0, 0, -6), App.Rotation())
add_polygon(sketch25, [(-130, 12), (-130, 58), (-114, 58), (-115, 12)])  # lines 0-3
sketch25.addConstraint([
    Sketcher.Constraint("Vertical", 0),
    Sketcher.Constraint("Horizontal", 1),
    Sketcher.Constraint("Horizontal", 3),
    Sketcher.Constraint("DistanceY", 0, 1, 0, 2, Q("46.5 mm")),
    Sketcher.Constraint("DistanceY", -1, 1, 2, 2, Q("12 mm")),
    Sketcher.Constraint("DistanceX", 1, 1, 1, 2, Q("16.037739 mm")),
    Sketcher.Constraint("DistanceX", 3, 2, 3, 1, Q("15.18738 mm")),
    Sketcher.Constraint("DistanceX", 1, 2, -1, 1, Q("114.238679 mm")),
])
pocket10 = doc.addObject("PartDesign::Pocket", "Pocket009")
body.addObject(pocket10)
pocket10.Profile = sketch25
pocket10.Type = "ThroughAll"
pocket10.Midplane = True

# Sketch on XZ plane
sketch26 = doc.addObject("Sketcher::SketchObject", "Sketch025")
body.addObject(sketch26)
sketch26.AttachmentSupport = (doc.XZ_Plane, [""])
sketch26.MapMode = "FlatFace"
sketch26.AttachmentOffset = App.Placement(V(0, 0, 130.276418), App.Rotation())
add_polygon(sketch26, [(6, 46), (-6, 46), (-51, 30), (-86, 40), (-96, 76), (67, 79), (67, 34)])  # lines 0-6
sketch26.addConstraint([
    Sketcher.Constraint("Horizontal", 0),
    Sketcher.Constraint("Vertical", 5),
    Sketcher.Constraint("DistanceX", 0, 2, 0, 1, Q("12 mm")),
    Sketcher.Constraint("DistanceX", 0, 2, -1, 1, Q("6 mm")),
    Sketcher.Constraint("DistanceY", -1, 1, 0, 2, Q("46.5 mm")),
    Sketcher.Constraint("DistanceX", 1, 2, -1, 1, Q("50.518801 mm")),
    Sketcher.Constraint("Distance", 2, Q("36.972661 mm")),
    Sketcher.Constraint("Distance", 6, Q("62.028328 mm")),
    Sketcher.Constraint("DistanceY", 5, 2, 5, 1, Q("44.778856 mm")),
    Sketcher.Constraint("DistanceY", -1, 1, 1, 2, Q("30.455181 mm")),
    Sketcher.Constraint("DistanceX", 3, 2, -1, 1, Q("96.24037 mm")),
    Sketcher.Constraint("DistanceY", -1, 1, 3, 2, Q("76.176749 mm")),
    Sketcher.Constraint("DistanceY", -1, 1, 5, 2, Q("34.46171 mm")),
    Sketcher.Constraint("DistanceY", 2, 2, 4, 2, Q("38.759711 mm")),
])
pocket11 = doc.addObject("PartDesign::Pocket", "Pocket010")
body.addObject(pocket11)
pocket11.Profile = sketch26
pocket11.Type = "ThroughAll"
pocket11.Reversed = True

# Sketch on XY plane
sketch27 = doc.addObject("Sketcher::SketchObject", "Sketch026")
body.addObject(sketch27)
sketch27.AttachmentSupport = (doc.XY_Plane, [""])
sketch27.MapMode = "FlatFace"
sketch27.AttachmentOffset = App.Placement(V(0, 0, 46.5), App.Rotation())
add_polygon(sketch27, [(-6, -130), (-6, -155), (6, -155), (6, -130)])  # lines 0-3
sketch27.addConstraint([
    Sketcher.Constraint("Vertical", 0),
    Sketcher.Constraint("Horizontal", 1),
    Sketcher.Constraint("Vertical", 2),
    Sketcher.Constraint("Horizontal", 3),
    Sketcher.Constraint("DistanceX", 1, 1, 1, 2, Q("12 mm")),
    Sketcher.Constraint("DistanceY", 0, 2, 0, 1, Q("25 mm")),
    Sketcher.Constraint("DistanceX", 0, 2, -1, 1, Q("6 mm")),
    Sketcher.Constraint("DistanceY", 0, 2, -1, 1, Q("155.276418 mm")),
])
pocket12 = doc.addObject("PartDesign::Pocket", "Pocket011")
body.addObject(pocket12)
pocket12.Profile = sketch27
pocket12.Length = 4

# Sketch on XY plane
sketch28 = doc.addObject("Sketcher::SketchObject", "Sketch027")
body.addObject(sketch28)
sketch28.AttachmentSupport = (doc.XY_Plane, [""])
sketch28.MapMode = "FlatFace"
sketch28.AttachmentOffset = App.Placement(V(0, 0, 42.5), App.Rotation())
add_polygon(sketch28, [(-30, -130), (-30, -155), (30, -155), (30, -130)])  # lines 0-3
sketch28.addConstraint([
    Sketcher.Constraint("Vertical", 0),
    Sketcher.Constraint("Horizontal", 1),
    Sketcher.Constraint("Vertical", 2),
    Sketcher.Constraint("Horizontal", 3),
    Sketcher.Constraint("DistanceX", 1, 1, 1, 2, Q("60 mm")),
    Sketcher.Constraint("DistanceY", 0, 2, 0, 1, Q("25 mm")),
    Sketcher.Constraint("DistanceX", 0, 2, -1, 1, Q("30 mm")),
    Sketcher.Constraint("DistanceY", 0, 2, -1, 1, Q("155.276418 mm")),
])
pad16 = doc.addObject("PartDesign::Pad", "Pad015")
body.addObject(pad16)
pad16.Profile = sketch28
pad16.Length = 12
doc.recompute()

fillet2 = doc.addObject("PartDesign::Fillet", "Fillet001")
body.addObject(fillet2)
fillet2.Base = (pad16, edges_at(pad16, [
    (30, -142.776, 42.5),
    (-30, -142.776, 42.5),
    (-30, -142.776, 54.5),
    (30, -142.776, 54.5),
]))
fillet2.Radius = 5
doc.recompute()

fillet3 = doc.addObject("PartDesign::Fillet", "Fillet002")
body.addObject(fillet3)
fillet3.Base = (fillet2, edges_at(fillet2, [(0, -130.276, 12)]))
fillet3.Radius = 5
doc.recompute()

chamfer = doc.addObject("PartDesign::Chamfer", "Chamfer")
body.addObject(chamfer)
chamfer.Base = (fillet3, edges_at(fillet3, [
    (10, -30.276, 6),
    (-10, -30.276, 6),
    (0, -30.276, 17),
    (0, -30.276, -5),
]))
chamfer.Size = 0.5
doc.recompute()

fillet4 = doc.addObject("PartDesign::Fillet", "Fillet003")
body.addObject(fillet4)
fillet4.Base = (chamfer, edges_at(chamfer, [(6, -142.776, 42.5), (-6, -142.776, 42.5)]))
fillet4.Radius = 5

doc.recompute()
